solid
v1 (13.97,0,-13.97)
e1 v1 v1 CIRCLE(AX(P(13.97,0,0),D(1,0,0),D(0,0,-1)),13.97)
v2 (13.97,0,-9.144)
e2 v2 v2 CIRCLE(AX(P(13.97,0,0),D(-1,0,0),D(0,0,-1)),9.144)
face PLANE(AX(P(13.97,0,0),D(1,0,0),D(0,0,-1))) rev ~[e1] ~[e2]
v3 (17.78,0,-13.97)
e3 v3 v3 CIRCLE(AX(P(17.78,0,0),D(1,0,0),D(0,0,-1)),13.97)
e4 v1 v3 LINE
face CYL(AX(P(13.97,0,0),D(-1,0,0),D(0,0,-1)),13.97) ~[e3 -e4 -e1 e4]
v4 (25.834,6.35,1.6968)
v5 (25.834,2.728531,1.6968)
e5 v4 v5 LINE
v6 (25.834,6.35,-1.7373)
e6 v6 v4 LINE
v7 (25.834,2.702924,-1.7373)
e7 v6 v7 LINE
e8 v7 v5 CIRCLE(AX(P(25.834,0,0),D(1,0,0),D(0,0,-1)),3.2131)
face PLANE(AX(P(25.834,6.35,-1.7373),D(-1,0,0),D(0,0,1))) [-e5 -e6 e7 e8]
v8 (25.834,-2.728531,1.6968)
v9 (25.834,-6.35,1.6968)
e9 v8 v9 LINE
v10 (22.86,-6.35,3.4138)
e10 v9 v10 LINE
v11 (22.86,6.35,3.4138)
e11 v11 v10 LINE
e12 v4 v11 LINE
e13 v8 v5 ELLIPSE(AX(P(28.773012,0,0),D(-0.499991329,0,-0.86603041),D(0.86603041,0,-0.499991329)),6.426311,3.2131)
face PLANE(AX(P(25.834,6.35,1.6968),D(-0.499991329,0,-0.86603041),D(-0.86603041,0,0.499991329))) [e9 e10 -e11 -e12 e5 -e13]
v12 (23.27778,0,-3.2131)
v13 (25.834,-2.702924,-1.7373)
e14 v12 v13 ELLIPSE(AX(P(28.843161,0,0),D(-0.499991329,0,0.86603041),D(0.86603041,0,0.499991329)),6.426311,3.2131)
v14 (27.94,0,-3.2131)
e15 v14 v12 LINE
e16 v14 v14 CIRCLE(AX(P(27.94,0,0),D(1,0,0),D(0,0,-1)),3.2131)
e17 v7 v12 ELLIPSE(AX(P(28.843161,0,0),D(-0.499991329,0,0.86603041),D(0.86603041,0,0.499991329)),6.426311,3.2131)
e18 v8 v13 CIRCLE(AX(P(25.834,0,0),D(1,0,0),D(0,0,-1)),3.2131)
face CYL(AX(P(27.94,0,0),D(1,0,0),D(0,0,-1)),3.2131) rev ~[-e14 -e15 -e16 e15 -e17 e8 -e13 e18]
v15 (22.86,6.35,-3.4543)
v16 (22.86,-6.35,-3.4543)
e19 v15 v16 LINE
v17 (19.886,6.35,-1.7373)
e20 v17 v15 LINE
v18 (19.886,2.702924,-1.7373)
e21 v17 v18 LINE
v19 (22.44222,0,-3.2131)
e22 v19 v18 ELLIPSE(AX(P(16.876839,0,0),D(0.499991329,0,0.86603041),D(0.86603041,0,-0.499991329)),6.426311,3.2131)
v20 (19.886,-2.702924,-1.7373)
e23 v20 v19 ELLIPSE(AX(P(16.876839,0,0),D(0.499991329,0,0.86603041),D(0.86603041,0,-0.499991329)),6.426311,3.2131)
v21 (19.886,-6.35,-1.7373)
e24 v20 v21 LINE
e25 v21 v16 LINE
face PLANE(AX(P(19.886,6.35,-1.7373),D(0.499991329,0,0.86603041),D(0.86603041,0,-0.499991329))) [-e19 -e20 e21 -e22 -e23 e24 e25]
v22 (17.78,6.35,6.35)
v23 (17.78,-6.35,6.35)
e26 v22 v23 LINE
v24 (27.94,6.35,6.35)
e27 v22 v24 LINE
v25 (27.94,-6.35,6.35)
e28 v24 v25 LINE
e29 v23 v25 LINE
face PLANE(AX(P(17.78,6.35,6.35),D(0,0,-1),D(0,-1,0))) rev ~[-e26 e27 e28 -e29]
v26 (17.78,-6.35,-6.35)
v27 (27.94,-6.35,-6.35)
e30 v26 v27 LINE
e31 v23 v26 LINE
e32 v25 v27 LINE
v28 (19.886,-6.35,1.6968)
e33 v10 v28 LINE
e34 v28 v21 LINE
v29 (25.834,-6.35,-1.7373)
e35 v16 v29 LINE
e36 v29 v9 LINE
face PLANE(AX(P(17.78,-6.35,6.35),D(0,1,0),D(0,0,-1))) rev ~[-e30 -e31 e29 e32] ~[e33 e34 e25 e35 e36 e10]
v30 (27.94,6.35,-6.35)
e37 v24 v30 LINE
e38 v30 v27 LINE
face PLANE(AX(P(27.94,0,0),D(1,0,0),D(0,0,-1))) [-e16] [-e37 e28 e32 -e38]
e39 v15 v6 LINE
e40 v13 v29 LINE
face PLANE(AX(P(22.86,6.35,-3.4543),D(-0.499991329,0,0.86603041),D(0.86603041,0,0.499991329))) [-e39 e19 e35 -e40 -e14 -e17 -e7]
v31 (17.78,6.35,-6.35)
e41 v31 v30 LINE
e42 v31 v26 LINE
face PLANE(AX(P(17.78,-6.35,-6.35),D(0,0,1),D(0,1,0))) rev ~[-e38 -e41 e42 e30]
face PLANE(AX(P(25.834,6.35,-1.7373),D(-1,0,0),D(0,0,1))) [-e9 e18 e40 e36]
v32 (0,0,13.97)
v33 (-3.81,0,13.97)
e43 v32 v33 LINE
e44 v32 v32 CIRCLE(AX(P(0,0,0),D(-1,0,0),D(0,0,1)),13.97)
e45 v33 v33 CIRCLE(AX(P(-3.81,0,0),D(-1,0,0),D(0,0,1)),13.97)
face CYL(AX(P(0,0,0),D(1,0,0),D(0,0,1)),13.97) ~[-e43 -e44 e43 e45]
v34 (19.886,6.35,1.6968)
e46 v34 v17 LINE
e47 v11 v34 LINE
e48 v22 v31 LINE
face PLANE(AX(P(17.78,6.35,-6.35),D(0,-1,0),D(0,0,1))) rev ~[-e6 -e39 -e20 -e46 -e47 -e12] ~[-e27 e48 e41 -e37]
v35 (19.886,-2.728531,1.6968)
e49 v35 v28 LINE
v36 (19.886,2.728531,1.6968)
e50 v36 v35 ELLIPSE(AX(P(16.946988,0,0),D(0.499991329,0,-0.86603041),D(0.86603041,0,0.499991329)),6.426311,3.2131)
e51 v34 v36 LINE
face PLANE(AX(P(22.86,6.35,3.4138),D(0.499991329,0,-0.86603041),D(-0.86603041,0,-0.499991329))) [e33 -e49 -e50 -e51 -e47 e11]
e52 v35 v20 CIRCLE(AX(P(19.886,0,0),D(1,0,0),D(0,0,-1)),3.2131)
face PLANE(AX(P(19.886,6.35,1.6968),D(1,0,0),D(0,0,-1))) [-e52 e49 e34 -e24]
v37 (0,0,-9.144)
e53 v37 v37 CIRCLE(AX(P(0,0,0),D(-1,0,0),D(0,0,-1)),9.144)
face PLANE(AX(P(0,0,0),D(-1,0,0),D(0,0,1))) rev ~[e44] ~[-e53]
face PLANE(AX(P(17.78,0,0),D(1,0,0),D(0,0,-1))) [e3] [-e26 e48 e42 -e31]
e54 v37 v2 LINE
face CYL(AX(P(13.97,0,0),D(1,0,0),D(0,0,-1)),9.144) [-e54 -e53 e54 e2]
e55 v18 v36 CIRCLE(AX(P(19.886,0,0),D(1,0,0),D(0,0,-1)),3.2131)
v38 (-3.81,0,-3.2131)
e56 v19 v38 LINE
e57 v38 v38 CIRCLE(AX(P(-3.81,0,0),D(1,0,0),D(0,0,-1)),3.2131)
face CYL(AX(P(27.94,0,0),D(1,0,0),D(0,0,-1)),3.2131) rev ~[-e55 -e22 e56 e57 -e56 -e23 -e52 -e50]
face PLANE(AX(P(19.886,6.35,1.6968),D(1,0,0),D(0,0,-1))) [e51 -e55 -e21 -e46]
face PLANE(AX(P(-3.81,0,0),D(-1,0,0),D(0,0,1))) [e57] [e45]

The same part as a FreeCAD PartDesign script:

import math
import FreeCAD as App
import Part
import Sketcher
Q = App.Units.Quantity

doc = App.newDocument("Part")
body = doc.addObject("PartDesign::Body", "Body")

sketch1 = body.newObject("Sketcher::SketchObject", "Sketch")
sketch1.AttachmentSupport = (doc.getObject("YZ_Plane"), [""])
sketch1.MapMode = "FlatFace"
sketch1.addGeometry([
    Part.ArcOfCircle(Part.Circle(App.Vector(0, 0, 0), App.Vector(0, 0, 1), 9.144), math.radians(90), math.radians(270)),
    Part.LineSegment(App.Vector(0, -9.144, 0), App.Vector(9.144, -9.144, 0)),
    Part.LineSegment(App.Vector(9.144, -9.144, 0), App.Vector(9.144, 9.144, 0)),
    Part.LineSegment(App.Vector(9.144, 9.144, 0), App.Vector(0, 9.144, 0)),
], False)
sketch1.addConstraint([
    Sketcher.Constraint("Tangent", 0, 2, 1, 1),
    Sketcher.Constraint("Coincident", 1, 2, 2, 1),
    Sketcher.Constraint("Coincident", 2, 2, 3, 1),
    Sketcher.Constraint("Tangent", 3, 2, 0, 1),
    Sketcher.Constraint("Horizontal", 1),
    Sketcher.Constraint("Vertical", 2),
    Sketcher.Constraint("Horizontal", 3),
    Sketcher.Constraint("Coincident", 0, 3, -1, 1),
    Sketcher.Constraint("Radius", 0, Q("0.36 in")),
    Sketcher.Constraint("DistanceX", 1, 1, 1, 2, Q("0.36 in")),
])
pad1 = body.newObject("PartDesign::Pad", "Pad")
pad1.Profile = sketch1
pad1.Length = Q("0.55 in")

sketch2 = body.newObject("Sketcher::SketchObject", "Sketch001")
sketch2.AttachmentSupport = (doc.getObject("YZ_Plane"), [""])
sketch2.MapMode = "FlatFace"
sketch2.AttachmentOffset = App.Placement(App.Vector(0, 0, 0.55 * 25.4), App.Rotation())
sketch2.addGeometry([
    Part.ArcOfCircle(Part.Circle(App.Vector(0, 0, 0), App.Vector(0, 0, 1), 9.144), math.radians(-90), math.radians(0)),
    Part.LineSegment(App.Vector(0, -9.144, 0), App.Vector(9.144, -9.144, 0)),
    Part.LineSegment(App.Vector(9.144, -9.144, 0), App.Vector(9.144, 0, 0)),
    Part.LineSegment(App.Vector(9.144, 9.144, 0), App.Vector(0, 9.144, 0)),
    Part.ArcOfCircle(Part.Circle(App.Vector(0, 0, 0), App.Vector(0, 0, 1), 9.144), math.radians(0), math.radians(90)),
    Part.LineSegment(App.Vector(9.144, 0, 0), App.Vector(9.144, 9.144, 0)),
], False)
sketch2.addConstraint([
    Sketcher.Constraint("Tangent", 0, 1, 1, 1),
    Sketcher.Constraint("Coincident", 1, 2, 2, 1),
    Sketcher.Constraint("Tangent", 2, 2, 0, 2),
    Sketcher.Constraint("Tangent", 3, 2, 4, 2),
    Sketcher.Constraint("Tangent", 4, 1, 5, 1),
    Sketcher.Constraint("Coincident", 5, 2, 3, 1),
    Sketcher.Constraint("Horizontal", 1),
    Sketcher.Constraint("Vertical", 2),
    Sketcher.Constraint("Horizontal", 3),
    Sketcher.Constraint("Vertical", 5),
    Sketcher.Constraint("Coincident", 0, 3, -1, 1),
    Sketcher.Constraint("Coincident", 4, 3, -1, 1),
    Sketcher.Constraint("Equal", 0, 4),
    Sketcher.Constraint("Radius", 0, Q("0.36 in")),
])
pocket1 = body.newObject("PartDesign::Pocket", "Pocket")
pocket1.Profile = sketch2
pocket1.Length = Q("1 in")

sketch3 = body.newObject("Sketcher::SketchObject", "Sketch002")
sketch3.AttachmentSupport = (doc.getObject("YZ_Plane"), [""])
sketch3.MapMode = "FlatFace"
sketch3.AttachmentOffset = App.Placement(App.Vector(0, 0, 0.55 * 25.4), App.Rotation())
sketch3.addGeometry(Part.Circle(App.Vector(0, 0, 0), App.Vector(0, 0, 1), 3.2131), False)
sketch3.addConstraint([
    Sketcher.Constraint("Coincident", 0, 3, -1, 1),
    Sketcher.Constraint("Diameter", 0, Q("0.253 in")),
])
pocket2 = body.newObject("PartDesign::Pocket", "Pocket001")
pocket2.Profile = sketch3
pocket2.Length = Q("1 in")

sketch4 = body.newObject("Sketcher::SketchObject", "Sketch003")
sketch4.AttachmentSupport = (doc.getObject("YZ_Plane"), [""])
sketch4.MapMode = "FlatFace"
sketch4.AttachmentOffset = App.Placement(App.Vector(0, 0, 0.55 * 25.4), App.Rotation())
sketch4.addGeometry(Part.Circle(App.Vector(0, 0, 0), App.Vector(0, 0, 1), 13.97), False)
sketch4.addConstraint([
    Sketcher.Constraint("Coincident", 0, 3, -1, 1),
    Sketcher.Constraint("Diameter", 0, Q("1.1 in")),
])
pad2 = body.newObject("PartDesign::Pad", "Pad001")
pad2.Profile = sketch4
pad2.Length = Q("0.15 in")

sketch5 = body.newObject("Sketcher::SketchObject", "Sketch004")
sketch5.AttachmentSupport = (doc.getObject("YZ_Plane"), [""])
sketch5.MapMode = "FlatFace"
sketch5.addGeometry(Part.Circle(App.Vector(0, 0, 0), App.Vector(0, 0, 1), 13.97), False)
sketch5.addConstraint([
    Sketcher.Constraint("Coincident", 0, 3, -1, 1),
    Sketcher.Constraint("Diameter", 0, Q("1.1 in")),
])
pad3 = body.newObject("PartDesign::Pad", "Pad002")
pad3.Profile = sketch5
pad3.Length = Q("0.15 in")
pad3.Reversed = True

sketch6 = body.newObject("Sketcher::SketchObject", "Sketch005")
sketch6.AttachmentSupport = (doc.getObject("YZ_Plane"), [""])
sketch6.MapMode = "FlatFace"
sketch6.AttachmentOffset = App.Placement(App.Vector(0, 0, 0.7 * 25.4), App.Rotation())
sketch6.addGeometry([
    Part.LineSegment(App.Vector(-6.35, -6.35, 0), App.Vector(6.35, -6.35, 0)),
    Part.LineSegment(App.Vector(6.35, -6.35, 0), App.Vector(6.35, 6.35, 0)),
    Part.LineSegment(App.Vector(6.35, 6.35, 0), App.Vector(-6.35, 6.35, 0)),
    Part.LineSegment(App.Vector(-6.35, 6.35, 0), App.Vector(-6.35, -6.35, 0)),
], False)
sketch6.addConstraint([
    Sketcher.Constraint("Coincident", 0, 2, 1, 1),
    Sketcher.Constraint("Coincident", 1, 2, 2, 1),
    Sketcher.Constraint("Coincident", 2, 2, 3, 1),
    Sketcher.Constraint("Coincident", 3, 2, 0, 1),
    Sketcher.Constraint("Horizontal", 0),
    Sketcher.Constraint("Vertical", 1),
    Sketcher.Constraint("Horizontal", 2),
    Sketcher.Constraint("Vertical", 3),
    Sketcher.Constraint("Symmetric", 0, 2, 2, 2, -1, 1),
    Sketcher.Constraint("Equal", 2, 1),
    Sketcher.Constraint("DistanceX", 0, 1, 0, 2, Q("0.5 in")),
])
pad4 = body.newObject("PartDesign::Pad", "Pad003")
pad4.Profile = sketch6
pad4.Length = Q("0.4 in")

sketch7 = body.newObject("Sketcher::SketchObject", "Sketch006")
sketch7.AttachmentSupport = (doc.getObject("XZ_Plane"), [""])
sketch7.MapMode = "FlatFace"
sketch7.AttachmentOffset = App.Placement(App.Vector(0, 0, -0.25 * 25.4), App.Rotation())
sketch7.addGeometry([
    Part.LineSegment(App.Vector(25.834, -1.7373, 0), App.Vector(22.86, -3.4543, 0)),
    Part.LineSegment(App.Vector(22.86, -3.4543, 0), App.Vector(19.886, -1.7373, 0)),
    Part.LineSegment(App.Vector(19.886, -1.7373, 0), App.Vector(19.886, 1.6968, 0)),
    Part.LineSegment(App.Vector(19.886, 1.6968, 0), App.Vector(22.86, 3.4138, 0)),
    Part.LineSegment(App.Vector(22.86, 3.4138, 0), App.Vector(25.834, 1.6968, 0)),
    Part.LineSegment(App.Vector(25.834, 1.6968, 0), App.Vector(25.834, -1.7373, 0)),
], False)
sketch7.addConstraint([
    Sketcher.Constraint("Coincident", 0, 2, 1, 1),
    Sketcher.Constraint("Coincident", 1, 2, 2, 1),
    Sketcher.Constraint("Coincident", 2, 2, 3, 1),
    Sketcher.Constraint("Coincident", 3, 2, 4, 1),
    Sketcher.Constraint("Coincident", 4, 2, 5, 1),
    Sketcher.Constraint("Coincident", 5, 2, 0, 1),
    Sketcher.Constraint("Vertical", 2),
    Sketcher.Constraint("Vertical", 5),
    Sketcher.Constraint("Parallel", 0, 3),
    Sketcher.Constraint("Parallel", 1, 4),
    Sketcher.Constraint("Horizontal", 2, 2, 4, 2),
    Sketcher.Constraint("Horizontal", 1, 2, 5, 2),
    Sketcher.Constraint("Vertical", 0, 2, 3, 2),
    Sketcher.Constraint("Angle", 0, Q("-150.0006 deg")),
    Sketcher.Constraint("DistanceX", -1, 1, 0, 2, Q("0.9 in")),
    Sketcher.Constraint("DistanceY", 2, 1, 2, 2, Q("0.1352 in")),
    Sketcher.Constraint("DistanceY", 0, 2, -1, 1, Q("0.136 in")),
    Sketcher.Constraint("Distance", 0, Q("0.1352 in")),
])
pocket3 = body.newObject("PartDesign::Pocket", "Pocket002")
pocket3.Profile = sketch7
pocket3.Length = Q("1 in")
pocket3.Reversed = True

sketch8 = body.newObject("Sketcher::SketchObject", "Sketch007")
sketch8.AttachmentSupport = (doc.getObject("YZ_Plane"), [""])
sketch8.MapMode = "FlatFace"
sketch8.AttachmentOffset = App.Placement(App.Vector(0, 0, 1.1 * 25.4), App.Rotation())
sketch8.addGeometry(Part.Circle(App.Vector(0, 0, 0), App.Vector(0, 0, 1), 3.2131), False)
sketch8.addConstraint([
    Sketcher.Constraint("Coincident", 0, 3, -1, 1),
    Sketcher.Constraint("Diameter", 0, Q("0.253 in")),
])
pocket4 = body.newObject("PartDesign::Pocket", "Pocket003")
pocket4.Profile = sketch8
pocket4.Length = Q("2 in")

doc.recompute()
